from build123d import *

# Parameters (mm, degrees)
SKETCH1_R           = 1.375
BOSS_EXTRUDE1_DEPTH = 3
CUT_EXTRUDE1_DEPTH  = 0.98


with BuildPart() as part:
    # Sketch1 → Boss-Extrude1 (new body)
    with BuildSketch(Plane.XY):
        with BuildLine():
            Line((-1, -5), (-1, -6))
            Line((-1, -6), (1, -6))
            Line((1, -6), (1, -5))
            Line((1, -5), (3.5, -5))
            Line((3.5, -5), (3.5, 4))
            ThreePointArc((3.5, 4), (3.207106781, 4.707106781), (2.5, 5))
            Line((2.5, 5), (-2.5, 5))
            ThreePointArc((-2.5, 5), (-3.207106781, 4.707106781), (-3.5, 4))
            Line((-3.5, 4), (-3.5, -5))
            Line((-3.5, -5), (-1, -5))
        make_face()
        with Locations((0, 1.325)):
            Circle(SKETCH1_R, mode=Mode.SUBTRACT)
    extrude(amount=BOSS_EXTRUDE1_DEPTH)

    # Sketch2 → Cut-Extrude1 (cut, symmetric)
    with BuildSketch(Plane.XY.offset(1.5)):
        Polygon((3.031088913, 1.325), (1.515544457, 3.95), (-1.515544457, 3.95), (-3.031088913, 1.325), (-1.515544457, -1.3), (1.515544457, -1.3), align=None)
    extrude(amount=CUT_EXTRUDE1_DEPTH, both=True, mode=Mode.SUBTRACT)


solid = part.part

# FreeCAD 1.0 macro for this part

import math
import FreeCAD as App
import Part
import Sketcher
Q = App.Units.Quantity


def add_polygon(sketch, points):
    """Adds a closed chain of lines whose ends are joined by coincident constraints."""
    first, n = sketch.GeometryCount, len(points)
    for a, b in zip(points, points[1:] + points[:1]):
        sketch.addGeometry(Part.LineSegment(App.Vector(*a, 0), App.Vector(*b, 0)), False)
    for i in range(n):
        sketch.addConstraint(Sketcher.Constraint("Coincident", first + i, 2, first + (i + 1) % n, 1))

doc = App.newDocument("Part")
body = doc.addObject("PartDesign::Body", "Body")

sketch1 = body.newObject("Sketcher::SketchObject", "Sketch")
sketch1.AttachmentSupport = (doc.getObject("XY_Plane"), [""])
sketch1.MapMode = "FlatFace"
sketch1.addGeometry(Part.LineSegment(App.Vector(-1, -5, 0), App.Vector(-1, -6, 0)), False)
sketch1.addGeometry(Part.LineSegment(App.Vector(-1, -6, 0), App.Vector(1, -6, 0)), False)
sketch1.addGeometry(Part.LineSegment(App.Vector(1, -6, 0), App.Vector(1, -5, 0)), False)
sketch1.addGeometry(Part.LineSegment(App.Vector(1, -5, 0), App.Vector(3.5, -5, 0)), False)
sketch1.addGeometry(Part.LineSegment(App.Vector(3.5, -5, 0), App.Vector(3.5, 4, 0)), False)
sketch1.addGeometry(Part.ArcOfCircle(Part.Circle(App.Vector(2.5, 4, 0), App.Vector(0, 0, 1), 1), math.radians(0), math.radians(90)), False)
sketch1.addGeometry(Part.LineSegment(App.Vector(2.5, 5, 0), App.Vector(-2.5, 5, 0)), False)
sketch1.addGeometry(Part.ArcOfCircle(Part.Circle(App.Vector(-2.5, 4, 0), App.Vector(0, 0, 1), 1), math.radians(90), math.radians(180)), False)
sketch1.addGeometry(Part.LineSegment(App.Vector(-3.5, 4, 0), App.Vector(-3.5, -5, 0)), False)
sketch1.addGeometry(Part.LineSegment(App.Vector(-3.5, -5, 0), App.Vector(-1, -5, 0)), False)
sketch1.addGeometry(Part.Circle(App.Vector(0, 1.3, 0), App.Vector(0, 0, 1), 1.4), False)
sketch1.addConstraint(Sketcher.Constraint("Coincident", 0, 2, 1, 1))
sketch1.addConstraint(Sketcher.Constraint("Coincident", 1, 2, 2, 1))
sketch1.addConstraint(Sketcher.Constraint("Coincident", 2, 2, 3, 1))
sketch1.addConstraint(Sketcher.Constraint("Coincident", 3, 2, 4, 1))
sketch1.addConstraint(Sketcher.Constraint("Tangent", 4, 2, 5, 1))
sketch1.addConstraint(Sketcher.Constraint("Tangent", 5, 2, 6, 1))
sketch1.addConstraint(Sketcher.Constraint("Tangent", 6, 2, 7, 1))
sketch1.addConstraint(Sketcher.Constraint("Tangent", 7, 2, 8, 1))
sketch1.addConstraint(Sketcher.Constraint("Coincident", 8, 2, 9, 1))
sketch1.addConstraint(Sketcher.Constraint("Coincident", 9, 2, 0, 1))
sketch1.addConstraint(Sketcher.Constraint("Vertical", 0))
sketch1.addConstraint(Sketcher.Constraint("Horizontal", 1))
sketch1.addConstraint(Sketcher.Constraint("Vertical", 2))
sketch1.addConstraint(Sketcher.Constraint("Horizontal", 3))
sketch1.addConstraint(Sketcher.Constraint("Vertical", 4))
sketch1.addConstraint(Sketcher.Constraint("Horizontal", 6))
sketch1.addConstraint(Sketcher.Constraint("Vertical", 8))
sketch1.addConstraint(Sketcher.Constraint("Horizontal", 9))
sketch1.addConstraint(Sketcher.Constraint("Equal", 5, 7))
sketch1.addConstraint(Sketcher.Constraint("Symmetric", 3, 2, 8, 2, -2))
sketch1.addConstraint(Sketcher.Constraint("PointOnObject", 10, 3, -2))
sketch1.addConstraint(Sketcher.Constraint("Equal", 3, 9))
sketch1.addConstraint(Sketcher.Constraint("Radius", 5, Q("1 mm")))
sketch1.addConstraint(Sketcher.Constraint("Diameter", 10, Q("2.75 mm")))
sketch1.addConstraint(Sketcher.Constraint("DistanceX", 1, 1, 1, 2, Q("2 mm")))
sketch1.addConstraint(Sketcher.Constraint("DistanceX", 6, 2, 6, 1, Q("5 mm")))
sketch1.addConstraint(Sketcher.Constraint("DistanceY", 0, 2, 0, 1, Q("1 mm")))
sketch1.addConstraint(Sketcher.Constraint("DistanceY", 4, 1, 4, 2, Q("9 mm")))
sketch1.addConstraint(Sketcher.Constraint("DistanceY", -1, 1, 5, 3, Q("4 mm")))
sketch1.addConstraint(Sketcher.Constraint("DistanceY", -1, 1, 10, 3, Q("1.325 mm")))
pad1 = body.newObject("PartDesign::Pad", "Pad")
pad1.Profile = sketch1
pad1.Length = 3

sketch2 = body.newObject("Sketcher::SketchObject", "Sketch001")
sketch2.AttachmentSupport = (doc.getObject("XY_Plane"), [""])
sketch2.MapMode = "FlatFace"
sketch2.AttachmentOffset = App.Placement(App.Vector(0, 0, 1.5), App.Rotation())
add_polygon(sketch2, [(3, 1.3), (1.5, 4), (-1.5, 4), (-3, 1.3), (-1.5, -1.3), (1.5, -1.3)])
sketch2.addConstraint(Sketcher.Constraint("Horizontal", 1))
sketch2.addConstraint(Sketcher.Constraint("Horizontal", 4))
sketch2.addConstraint(Sketcher.Constraint("Symmetric", 2, 2, 5, 2, -2))
sketch2.addConstraint(Sketcher.Constraint("Parallel", 0, 3))
sketch2.addConstraint(Sketcher.Constraint("Parallel", 2, 5))
sketch2.addConstraint(Sketcher.Constraint("Vertical", 1, 2, 3, 2))
sketch2.addConstraint(Sketcher.Constraint("Vertical", 0, 2, 4, 2))
sketch2.addConstraint(Sketcher.Constraint("Angle", 0, Q("120 deg")))
sketch2.addConstraint(Sketcher.Constraint("DistanceY", 3, 2, -1, 1, Q("1.3 mm")))
sketch2.addConstraint(Sketcher.Constraint("DistanceY", -1, 1, 0, 2, Q("3.95 mm")))
sketch2.addConstraint(Sketcher.Constraint("DistanceX", 1, 2, 1, 1, Q("3.031089 mm")))
pocket1 = body.newObject("PartDesign::Pocket", "Pocket")
pocket1.Profile = sketch2
pocket1.Length = 1.96
pocket1.Midplane = True

doc.recompute()
